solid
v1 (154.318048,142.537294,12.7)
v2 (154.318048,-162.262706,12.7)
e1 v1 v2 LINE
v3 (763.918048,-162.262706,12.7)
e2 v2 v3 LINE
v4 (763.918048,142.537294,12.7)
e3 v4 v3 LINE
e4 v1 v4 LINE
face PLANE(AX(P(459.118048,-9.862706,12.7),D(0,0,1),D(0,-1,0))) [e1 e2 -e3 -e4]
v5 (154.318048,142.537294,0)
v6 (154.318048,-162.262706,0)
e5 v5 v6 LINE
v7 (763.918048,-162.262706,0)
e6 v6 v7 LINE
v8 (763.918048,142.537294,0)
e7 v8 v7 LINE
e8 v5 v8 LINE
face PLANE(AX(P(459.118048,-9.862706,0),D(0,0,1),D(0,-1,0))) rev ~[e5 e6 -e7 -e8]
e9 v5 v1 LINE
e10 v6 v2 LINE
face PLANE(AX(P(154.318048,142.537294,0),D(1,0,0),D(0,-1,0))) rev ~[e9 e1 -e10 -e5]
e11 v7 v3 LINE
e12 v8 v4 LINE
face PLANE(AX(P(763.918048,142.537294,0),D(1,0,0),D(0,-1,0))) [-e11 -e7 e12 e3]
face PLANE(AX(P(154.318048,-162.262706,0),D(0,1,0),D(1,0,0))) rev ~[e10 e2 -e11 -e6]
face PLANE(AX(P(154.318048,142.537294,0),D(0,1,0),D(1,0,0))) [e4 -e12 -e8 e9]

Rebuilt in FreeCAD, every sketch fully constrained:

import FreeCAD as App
import Part
import Sketcher
Q = App.Units.Quantity

doc = App.newDocument("Part")
params = doc.addObject("Spreadsheet::Sheet", "Params")
for row, (alias, value) in enumerate([
    ("sketch1_width", "12 in"),
    ("sketch1_height", "24 in"),
    ("pad1_length", "0.5 in"),
], start=1):
    params.set(f"A{row}", alias)
    params.set(f"B{row}", "=" + value)
    params.setAlias(f"B{row}", alias)

body = doc.addObject("PartDesign::Body", "Body")

# Sketch on XY plane
sketch1 = body.newObject("Sketcher::SketchObject", "Sketch")
sketch1.AttachmentSupport = (doc.getObject("XY_Plane"), [""])
sketch1.MapMode = "FlatFace"
sketch1.addGeometry(Part.LineSegment(App.Vector(-150, 447, 0), App.Vector(-150, -162, 0)), False)
sketch1.addGeometry(Part.LineSegment(App.Vector(-150, -162, 0), App.Vector(154, -162, 0)), False)
sketch1.addGeometry(Part.LineSegment(App.Vector(154, -162, 0), App.Vector(154, 447, 0)), False)
sketch1.addGeometry(Part.LineSegment(App.Vector(154, 447, 0), App.Vector(-150, 447, 0)), False)
sketch1.addConstraint(Sketcher.Constraint("Coincident", 0, 2, 1, 1))
sketch1.addConstraint(Sketcher.Constraint("Coincident", 1, 2, 2, 1))
sketch1.addConstraint(Sketcher.Constraint("Coincident", 2, 2, 3, 1))
sketch1.addConstraint(Sketcher.Constraint("Coincident", 3, 2, 0, 1))
sketch1.addConstraint(Sketcher.Constraint("Vertical", 0))
sketch1.addConstraint(Sketcher.Constraint("Horizontal", 1))
sketch1.addConstraint(Sketcher.Constraint("Vertical", 2))
sketch1.addConstraint(Sketcher.Constraint("Horizontal", 3))
sketch1.addConstraint(Sketcher.Constraint("DistanceX", 1, 1, 1, 2, Q("12 in")))
sketch1.addConstraint(Sketcher.Constraint("DistanceY", 0, 2, 0, 1, Q("24 in")))
sketch1.addConstraint(Sketcher.Constraint("DistanceX", 0, 2, -1, 1, Q("150.481952 mm")))
sketch1.addConstraint(Sketcher.Constraint("DistanceY", 0, 2, -1, 1, Q("162.262706 mm")))
sketch1.setExpression("Constraints[8]", "Params.sketch1_width")
sketch1.setExpression("Constraints[9]", "Params.sketch1_height")
pad1 = body.newObject("PartDesign::Pad", "Pad")
pad1.Profile = sketch1
pad1.setExpression("Length", "Params.pad1_length")
body2 = doc.addObject("PartDesign::Body", "Body001")
doc.recompute()

body.Placement = App.Placement(App.Vector(316.580754, -7.944659, 0), App.Rotation(App.Vector(0, 0, -1), 90))
boolean = body2.newObject("PartDesign::Boolean", "Boolean")
boolean.Type = "Fuse"
boolean.addObjects([body])

doc.recompute()
